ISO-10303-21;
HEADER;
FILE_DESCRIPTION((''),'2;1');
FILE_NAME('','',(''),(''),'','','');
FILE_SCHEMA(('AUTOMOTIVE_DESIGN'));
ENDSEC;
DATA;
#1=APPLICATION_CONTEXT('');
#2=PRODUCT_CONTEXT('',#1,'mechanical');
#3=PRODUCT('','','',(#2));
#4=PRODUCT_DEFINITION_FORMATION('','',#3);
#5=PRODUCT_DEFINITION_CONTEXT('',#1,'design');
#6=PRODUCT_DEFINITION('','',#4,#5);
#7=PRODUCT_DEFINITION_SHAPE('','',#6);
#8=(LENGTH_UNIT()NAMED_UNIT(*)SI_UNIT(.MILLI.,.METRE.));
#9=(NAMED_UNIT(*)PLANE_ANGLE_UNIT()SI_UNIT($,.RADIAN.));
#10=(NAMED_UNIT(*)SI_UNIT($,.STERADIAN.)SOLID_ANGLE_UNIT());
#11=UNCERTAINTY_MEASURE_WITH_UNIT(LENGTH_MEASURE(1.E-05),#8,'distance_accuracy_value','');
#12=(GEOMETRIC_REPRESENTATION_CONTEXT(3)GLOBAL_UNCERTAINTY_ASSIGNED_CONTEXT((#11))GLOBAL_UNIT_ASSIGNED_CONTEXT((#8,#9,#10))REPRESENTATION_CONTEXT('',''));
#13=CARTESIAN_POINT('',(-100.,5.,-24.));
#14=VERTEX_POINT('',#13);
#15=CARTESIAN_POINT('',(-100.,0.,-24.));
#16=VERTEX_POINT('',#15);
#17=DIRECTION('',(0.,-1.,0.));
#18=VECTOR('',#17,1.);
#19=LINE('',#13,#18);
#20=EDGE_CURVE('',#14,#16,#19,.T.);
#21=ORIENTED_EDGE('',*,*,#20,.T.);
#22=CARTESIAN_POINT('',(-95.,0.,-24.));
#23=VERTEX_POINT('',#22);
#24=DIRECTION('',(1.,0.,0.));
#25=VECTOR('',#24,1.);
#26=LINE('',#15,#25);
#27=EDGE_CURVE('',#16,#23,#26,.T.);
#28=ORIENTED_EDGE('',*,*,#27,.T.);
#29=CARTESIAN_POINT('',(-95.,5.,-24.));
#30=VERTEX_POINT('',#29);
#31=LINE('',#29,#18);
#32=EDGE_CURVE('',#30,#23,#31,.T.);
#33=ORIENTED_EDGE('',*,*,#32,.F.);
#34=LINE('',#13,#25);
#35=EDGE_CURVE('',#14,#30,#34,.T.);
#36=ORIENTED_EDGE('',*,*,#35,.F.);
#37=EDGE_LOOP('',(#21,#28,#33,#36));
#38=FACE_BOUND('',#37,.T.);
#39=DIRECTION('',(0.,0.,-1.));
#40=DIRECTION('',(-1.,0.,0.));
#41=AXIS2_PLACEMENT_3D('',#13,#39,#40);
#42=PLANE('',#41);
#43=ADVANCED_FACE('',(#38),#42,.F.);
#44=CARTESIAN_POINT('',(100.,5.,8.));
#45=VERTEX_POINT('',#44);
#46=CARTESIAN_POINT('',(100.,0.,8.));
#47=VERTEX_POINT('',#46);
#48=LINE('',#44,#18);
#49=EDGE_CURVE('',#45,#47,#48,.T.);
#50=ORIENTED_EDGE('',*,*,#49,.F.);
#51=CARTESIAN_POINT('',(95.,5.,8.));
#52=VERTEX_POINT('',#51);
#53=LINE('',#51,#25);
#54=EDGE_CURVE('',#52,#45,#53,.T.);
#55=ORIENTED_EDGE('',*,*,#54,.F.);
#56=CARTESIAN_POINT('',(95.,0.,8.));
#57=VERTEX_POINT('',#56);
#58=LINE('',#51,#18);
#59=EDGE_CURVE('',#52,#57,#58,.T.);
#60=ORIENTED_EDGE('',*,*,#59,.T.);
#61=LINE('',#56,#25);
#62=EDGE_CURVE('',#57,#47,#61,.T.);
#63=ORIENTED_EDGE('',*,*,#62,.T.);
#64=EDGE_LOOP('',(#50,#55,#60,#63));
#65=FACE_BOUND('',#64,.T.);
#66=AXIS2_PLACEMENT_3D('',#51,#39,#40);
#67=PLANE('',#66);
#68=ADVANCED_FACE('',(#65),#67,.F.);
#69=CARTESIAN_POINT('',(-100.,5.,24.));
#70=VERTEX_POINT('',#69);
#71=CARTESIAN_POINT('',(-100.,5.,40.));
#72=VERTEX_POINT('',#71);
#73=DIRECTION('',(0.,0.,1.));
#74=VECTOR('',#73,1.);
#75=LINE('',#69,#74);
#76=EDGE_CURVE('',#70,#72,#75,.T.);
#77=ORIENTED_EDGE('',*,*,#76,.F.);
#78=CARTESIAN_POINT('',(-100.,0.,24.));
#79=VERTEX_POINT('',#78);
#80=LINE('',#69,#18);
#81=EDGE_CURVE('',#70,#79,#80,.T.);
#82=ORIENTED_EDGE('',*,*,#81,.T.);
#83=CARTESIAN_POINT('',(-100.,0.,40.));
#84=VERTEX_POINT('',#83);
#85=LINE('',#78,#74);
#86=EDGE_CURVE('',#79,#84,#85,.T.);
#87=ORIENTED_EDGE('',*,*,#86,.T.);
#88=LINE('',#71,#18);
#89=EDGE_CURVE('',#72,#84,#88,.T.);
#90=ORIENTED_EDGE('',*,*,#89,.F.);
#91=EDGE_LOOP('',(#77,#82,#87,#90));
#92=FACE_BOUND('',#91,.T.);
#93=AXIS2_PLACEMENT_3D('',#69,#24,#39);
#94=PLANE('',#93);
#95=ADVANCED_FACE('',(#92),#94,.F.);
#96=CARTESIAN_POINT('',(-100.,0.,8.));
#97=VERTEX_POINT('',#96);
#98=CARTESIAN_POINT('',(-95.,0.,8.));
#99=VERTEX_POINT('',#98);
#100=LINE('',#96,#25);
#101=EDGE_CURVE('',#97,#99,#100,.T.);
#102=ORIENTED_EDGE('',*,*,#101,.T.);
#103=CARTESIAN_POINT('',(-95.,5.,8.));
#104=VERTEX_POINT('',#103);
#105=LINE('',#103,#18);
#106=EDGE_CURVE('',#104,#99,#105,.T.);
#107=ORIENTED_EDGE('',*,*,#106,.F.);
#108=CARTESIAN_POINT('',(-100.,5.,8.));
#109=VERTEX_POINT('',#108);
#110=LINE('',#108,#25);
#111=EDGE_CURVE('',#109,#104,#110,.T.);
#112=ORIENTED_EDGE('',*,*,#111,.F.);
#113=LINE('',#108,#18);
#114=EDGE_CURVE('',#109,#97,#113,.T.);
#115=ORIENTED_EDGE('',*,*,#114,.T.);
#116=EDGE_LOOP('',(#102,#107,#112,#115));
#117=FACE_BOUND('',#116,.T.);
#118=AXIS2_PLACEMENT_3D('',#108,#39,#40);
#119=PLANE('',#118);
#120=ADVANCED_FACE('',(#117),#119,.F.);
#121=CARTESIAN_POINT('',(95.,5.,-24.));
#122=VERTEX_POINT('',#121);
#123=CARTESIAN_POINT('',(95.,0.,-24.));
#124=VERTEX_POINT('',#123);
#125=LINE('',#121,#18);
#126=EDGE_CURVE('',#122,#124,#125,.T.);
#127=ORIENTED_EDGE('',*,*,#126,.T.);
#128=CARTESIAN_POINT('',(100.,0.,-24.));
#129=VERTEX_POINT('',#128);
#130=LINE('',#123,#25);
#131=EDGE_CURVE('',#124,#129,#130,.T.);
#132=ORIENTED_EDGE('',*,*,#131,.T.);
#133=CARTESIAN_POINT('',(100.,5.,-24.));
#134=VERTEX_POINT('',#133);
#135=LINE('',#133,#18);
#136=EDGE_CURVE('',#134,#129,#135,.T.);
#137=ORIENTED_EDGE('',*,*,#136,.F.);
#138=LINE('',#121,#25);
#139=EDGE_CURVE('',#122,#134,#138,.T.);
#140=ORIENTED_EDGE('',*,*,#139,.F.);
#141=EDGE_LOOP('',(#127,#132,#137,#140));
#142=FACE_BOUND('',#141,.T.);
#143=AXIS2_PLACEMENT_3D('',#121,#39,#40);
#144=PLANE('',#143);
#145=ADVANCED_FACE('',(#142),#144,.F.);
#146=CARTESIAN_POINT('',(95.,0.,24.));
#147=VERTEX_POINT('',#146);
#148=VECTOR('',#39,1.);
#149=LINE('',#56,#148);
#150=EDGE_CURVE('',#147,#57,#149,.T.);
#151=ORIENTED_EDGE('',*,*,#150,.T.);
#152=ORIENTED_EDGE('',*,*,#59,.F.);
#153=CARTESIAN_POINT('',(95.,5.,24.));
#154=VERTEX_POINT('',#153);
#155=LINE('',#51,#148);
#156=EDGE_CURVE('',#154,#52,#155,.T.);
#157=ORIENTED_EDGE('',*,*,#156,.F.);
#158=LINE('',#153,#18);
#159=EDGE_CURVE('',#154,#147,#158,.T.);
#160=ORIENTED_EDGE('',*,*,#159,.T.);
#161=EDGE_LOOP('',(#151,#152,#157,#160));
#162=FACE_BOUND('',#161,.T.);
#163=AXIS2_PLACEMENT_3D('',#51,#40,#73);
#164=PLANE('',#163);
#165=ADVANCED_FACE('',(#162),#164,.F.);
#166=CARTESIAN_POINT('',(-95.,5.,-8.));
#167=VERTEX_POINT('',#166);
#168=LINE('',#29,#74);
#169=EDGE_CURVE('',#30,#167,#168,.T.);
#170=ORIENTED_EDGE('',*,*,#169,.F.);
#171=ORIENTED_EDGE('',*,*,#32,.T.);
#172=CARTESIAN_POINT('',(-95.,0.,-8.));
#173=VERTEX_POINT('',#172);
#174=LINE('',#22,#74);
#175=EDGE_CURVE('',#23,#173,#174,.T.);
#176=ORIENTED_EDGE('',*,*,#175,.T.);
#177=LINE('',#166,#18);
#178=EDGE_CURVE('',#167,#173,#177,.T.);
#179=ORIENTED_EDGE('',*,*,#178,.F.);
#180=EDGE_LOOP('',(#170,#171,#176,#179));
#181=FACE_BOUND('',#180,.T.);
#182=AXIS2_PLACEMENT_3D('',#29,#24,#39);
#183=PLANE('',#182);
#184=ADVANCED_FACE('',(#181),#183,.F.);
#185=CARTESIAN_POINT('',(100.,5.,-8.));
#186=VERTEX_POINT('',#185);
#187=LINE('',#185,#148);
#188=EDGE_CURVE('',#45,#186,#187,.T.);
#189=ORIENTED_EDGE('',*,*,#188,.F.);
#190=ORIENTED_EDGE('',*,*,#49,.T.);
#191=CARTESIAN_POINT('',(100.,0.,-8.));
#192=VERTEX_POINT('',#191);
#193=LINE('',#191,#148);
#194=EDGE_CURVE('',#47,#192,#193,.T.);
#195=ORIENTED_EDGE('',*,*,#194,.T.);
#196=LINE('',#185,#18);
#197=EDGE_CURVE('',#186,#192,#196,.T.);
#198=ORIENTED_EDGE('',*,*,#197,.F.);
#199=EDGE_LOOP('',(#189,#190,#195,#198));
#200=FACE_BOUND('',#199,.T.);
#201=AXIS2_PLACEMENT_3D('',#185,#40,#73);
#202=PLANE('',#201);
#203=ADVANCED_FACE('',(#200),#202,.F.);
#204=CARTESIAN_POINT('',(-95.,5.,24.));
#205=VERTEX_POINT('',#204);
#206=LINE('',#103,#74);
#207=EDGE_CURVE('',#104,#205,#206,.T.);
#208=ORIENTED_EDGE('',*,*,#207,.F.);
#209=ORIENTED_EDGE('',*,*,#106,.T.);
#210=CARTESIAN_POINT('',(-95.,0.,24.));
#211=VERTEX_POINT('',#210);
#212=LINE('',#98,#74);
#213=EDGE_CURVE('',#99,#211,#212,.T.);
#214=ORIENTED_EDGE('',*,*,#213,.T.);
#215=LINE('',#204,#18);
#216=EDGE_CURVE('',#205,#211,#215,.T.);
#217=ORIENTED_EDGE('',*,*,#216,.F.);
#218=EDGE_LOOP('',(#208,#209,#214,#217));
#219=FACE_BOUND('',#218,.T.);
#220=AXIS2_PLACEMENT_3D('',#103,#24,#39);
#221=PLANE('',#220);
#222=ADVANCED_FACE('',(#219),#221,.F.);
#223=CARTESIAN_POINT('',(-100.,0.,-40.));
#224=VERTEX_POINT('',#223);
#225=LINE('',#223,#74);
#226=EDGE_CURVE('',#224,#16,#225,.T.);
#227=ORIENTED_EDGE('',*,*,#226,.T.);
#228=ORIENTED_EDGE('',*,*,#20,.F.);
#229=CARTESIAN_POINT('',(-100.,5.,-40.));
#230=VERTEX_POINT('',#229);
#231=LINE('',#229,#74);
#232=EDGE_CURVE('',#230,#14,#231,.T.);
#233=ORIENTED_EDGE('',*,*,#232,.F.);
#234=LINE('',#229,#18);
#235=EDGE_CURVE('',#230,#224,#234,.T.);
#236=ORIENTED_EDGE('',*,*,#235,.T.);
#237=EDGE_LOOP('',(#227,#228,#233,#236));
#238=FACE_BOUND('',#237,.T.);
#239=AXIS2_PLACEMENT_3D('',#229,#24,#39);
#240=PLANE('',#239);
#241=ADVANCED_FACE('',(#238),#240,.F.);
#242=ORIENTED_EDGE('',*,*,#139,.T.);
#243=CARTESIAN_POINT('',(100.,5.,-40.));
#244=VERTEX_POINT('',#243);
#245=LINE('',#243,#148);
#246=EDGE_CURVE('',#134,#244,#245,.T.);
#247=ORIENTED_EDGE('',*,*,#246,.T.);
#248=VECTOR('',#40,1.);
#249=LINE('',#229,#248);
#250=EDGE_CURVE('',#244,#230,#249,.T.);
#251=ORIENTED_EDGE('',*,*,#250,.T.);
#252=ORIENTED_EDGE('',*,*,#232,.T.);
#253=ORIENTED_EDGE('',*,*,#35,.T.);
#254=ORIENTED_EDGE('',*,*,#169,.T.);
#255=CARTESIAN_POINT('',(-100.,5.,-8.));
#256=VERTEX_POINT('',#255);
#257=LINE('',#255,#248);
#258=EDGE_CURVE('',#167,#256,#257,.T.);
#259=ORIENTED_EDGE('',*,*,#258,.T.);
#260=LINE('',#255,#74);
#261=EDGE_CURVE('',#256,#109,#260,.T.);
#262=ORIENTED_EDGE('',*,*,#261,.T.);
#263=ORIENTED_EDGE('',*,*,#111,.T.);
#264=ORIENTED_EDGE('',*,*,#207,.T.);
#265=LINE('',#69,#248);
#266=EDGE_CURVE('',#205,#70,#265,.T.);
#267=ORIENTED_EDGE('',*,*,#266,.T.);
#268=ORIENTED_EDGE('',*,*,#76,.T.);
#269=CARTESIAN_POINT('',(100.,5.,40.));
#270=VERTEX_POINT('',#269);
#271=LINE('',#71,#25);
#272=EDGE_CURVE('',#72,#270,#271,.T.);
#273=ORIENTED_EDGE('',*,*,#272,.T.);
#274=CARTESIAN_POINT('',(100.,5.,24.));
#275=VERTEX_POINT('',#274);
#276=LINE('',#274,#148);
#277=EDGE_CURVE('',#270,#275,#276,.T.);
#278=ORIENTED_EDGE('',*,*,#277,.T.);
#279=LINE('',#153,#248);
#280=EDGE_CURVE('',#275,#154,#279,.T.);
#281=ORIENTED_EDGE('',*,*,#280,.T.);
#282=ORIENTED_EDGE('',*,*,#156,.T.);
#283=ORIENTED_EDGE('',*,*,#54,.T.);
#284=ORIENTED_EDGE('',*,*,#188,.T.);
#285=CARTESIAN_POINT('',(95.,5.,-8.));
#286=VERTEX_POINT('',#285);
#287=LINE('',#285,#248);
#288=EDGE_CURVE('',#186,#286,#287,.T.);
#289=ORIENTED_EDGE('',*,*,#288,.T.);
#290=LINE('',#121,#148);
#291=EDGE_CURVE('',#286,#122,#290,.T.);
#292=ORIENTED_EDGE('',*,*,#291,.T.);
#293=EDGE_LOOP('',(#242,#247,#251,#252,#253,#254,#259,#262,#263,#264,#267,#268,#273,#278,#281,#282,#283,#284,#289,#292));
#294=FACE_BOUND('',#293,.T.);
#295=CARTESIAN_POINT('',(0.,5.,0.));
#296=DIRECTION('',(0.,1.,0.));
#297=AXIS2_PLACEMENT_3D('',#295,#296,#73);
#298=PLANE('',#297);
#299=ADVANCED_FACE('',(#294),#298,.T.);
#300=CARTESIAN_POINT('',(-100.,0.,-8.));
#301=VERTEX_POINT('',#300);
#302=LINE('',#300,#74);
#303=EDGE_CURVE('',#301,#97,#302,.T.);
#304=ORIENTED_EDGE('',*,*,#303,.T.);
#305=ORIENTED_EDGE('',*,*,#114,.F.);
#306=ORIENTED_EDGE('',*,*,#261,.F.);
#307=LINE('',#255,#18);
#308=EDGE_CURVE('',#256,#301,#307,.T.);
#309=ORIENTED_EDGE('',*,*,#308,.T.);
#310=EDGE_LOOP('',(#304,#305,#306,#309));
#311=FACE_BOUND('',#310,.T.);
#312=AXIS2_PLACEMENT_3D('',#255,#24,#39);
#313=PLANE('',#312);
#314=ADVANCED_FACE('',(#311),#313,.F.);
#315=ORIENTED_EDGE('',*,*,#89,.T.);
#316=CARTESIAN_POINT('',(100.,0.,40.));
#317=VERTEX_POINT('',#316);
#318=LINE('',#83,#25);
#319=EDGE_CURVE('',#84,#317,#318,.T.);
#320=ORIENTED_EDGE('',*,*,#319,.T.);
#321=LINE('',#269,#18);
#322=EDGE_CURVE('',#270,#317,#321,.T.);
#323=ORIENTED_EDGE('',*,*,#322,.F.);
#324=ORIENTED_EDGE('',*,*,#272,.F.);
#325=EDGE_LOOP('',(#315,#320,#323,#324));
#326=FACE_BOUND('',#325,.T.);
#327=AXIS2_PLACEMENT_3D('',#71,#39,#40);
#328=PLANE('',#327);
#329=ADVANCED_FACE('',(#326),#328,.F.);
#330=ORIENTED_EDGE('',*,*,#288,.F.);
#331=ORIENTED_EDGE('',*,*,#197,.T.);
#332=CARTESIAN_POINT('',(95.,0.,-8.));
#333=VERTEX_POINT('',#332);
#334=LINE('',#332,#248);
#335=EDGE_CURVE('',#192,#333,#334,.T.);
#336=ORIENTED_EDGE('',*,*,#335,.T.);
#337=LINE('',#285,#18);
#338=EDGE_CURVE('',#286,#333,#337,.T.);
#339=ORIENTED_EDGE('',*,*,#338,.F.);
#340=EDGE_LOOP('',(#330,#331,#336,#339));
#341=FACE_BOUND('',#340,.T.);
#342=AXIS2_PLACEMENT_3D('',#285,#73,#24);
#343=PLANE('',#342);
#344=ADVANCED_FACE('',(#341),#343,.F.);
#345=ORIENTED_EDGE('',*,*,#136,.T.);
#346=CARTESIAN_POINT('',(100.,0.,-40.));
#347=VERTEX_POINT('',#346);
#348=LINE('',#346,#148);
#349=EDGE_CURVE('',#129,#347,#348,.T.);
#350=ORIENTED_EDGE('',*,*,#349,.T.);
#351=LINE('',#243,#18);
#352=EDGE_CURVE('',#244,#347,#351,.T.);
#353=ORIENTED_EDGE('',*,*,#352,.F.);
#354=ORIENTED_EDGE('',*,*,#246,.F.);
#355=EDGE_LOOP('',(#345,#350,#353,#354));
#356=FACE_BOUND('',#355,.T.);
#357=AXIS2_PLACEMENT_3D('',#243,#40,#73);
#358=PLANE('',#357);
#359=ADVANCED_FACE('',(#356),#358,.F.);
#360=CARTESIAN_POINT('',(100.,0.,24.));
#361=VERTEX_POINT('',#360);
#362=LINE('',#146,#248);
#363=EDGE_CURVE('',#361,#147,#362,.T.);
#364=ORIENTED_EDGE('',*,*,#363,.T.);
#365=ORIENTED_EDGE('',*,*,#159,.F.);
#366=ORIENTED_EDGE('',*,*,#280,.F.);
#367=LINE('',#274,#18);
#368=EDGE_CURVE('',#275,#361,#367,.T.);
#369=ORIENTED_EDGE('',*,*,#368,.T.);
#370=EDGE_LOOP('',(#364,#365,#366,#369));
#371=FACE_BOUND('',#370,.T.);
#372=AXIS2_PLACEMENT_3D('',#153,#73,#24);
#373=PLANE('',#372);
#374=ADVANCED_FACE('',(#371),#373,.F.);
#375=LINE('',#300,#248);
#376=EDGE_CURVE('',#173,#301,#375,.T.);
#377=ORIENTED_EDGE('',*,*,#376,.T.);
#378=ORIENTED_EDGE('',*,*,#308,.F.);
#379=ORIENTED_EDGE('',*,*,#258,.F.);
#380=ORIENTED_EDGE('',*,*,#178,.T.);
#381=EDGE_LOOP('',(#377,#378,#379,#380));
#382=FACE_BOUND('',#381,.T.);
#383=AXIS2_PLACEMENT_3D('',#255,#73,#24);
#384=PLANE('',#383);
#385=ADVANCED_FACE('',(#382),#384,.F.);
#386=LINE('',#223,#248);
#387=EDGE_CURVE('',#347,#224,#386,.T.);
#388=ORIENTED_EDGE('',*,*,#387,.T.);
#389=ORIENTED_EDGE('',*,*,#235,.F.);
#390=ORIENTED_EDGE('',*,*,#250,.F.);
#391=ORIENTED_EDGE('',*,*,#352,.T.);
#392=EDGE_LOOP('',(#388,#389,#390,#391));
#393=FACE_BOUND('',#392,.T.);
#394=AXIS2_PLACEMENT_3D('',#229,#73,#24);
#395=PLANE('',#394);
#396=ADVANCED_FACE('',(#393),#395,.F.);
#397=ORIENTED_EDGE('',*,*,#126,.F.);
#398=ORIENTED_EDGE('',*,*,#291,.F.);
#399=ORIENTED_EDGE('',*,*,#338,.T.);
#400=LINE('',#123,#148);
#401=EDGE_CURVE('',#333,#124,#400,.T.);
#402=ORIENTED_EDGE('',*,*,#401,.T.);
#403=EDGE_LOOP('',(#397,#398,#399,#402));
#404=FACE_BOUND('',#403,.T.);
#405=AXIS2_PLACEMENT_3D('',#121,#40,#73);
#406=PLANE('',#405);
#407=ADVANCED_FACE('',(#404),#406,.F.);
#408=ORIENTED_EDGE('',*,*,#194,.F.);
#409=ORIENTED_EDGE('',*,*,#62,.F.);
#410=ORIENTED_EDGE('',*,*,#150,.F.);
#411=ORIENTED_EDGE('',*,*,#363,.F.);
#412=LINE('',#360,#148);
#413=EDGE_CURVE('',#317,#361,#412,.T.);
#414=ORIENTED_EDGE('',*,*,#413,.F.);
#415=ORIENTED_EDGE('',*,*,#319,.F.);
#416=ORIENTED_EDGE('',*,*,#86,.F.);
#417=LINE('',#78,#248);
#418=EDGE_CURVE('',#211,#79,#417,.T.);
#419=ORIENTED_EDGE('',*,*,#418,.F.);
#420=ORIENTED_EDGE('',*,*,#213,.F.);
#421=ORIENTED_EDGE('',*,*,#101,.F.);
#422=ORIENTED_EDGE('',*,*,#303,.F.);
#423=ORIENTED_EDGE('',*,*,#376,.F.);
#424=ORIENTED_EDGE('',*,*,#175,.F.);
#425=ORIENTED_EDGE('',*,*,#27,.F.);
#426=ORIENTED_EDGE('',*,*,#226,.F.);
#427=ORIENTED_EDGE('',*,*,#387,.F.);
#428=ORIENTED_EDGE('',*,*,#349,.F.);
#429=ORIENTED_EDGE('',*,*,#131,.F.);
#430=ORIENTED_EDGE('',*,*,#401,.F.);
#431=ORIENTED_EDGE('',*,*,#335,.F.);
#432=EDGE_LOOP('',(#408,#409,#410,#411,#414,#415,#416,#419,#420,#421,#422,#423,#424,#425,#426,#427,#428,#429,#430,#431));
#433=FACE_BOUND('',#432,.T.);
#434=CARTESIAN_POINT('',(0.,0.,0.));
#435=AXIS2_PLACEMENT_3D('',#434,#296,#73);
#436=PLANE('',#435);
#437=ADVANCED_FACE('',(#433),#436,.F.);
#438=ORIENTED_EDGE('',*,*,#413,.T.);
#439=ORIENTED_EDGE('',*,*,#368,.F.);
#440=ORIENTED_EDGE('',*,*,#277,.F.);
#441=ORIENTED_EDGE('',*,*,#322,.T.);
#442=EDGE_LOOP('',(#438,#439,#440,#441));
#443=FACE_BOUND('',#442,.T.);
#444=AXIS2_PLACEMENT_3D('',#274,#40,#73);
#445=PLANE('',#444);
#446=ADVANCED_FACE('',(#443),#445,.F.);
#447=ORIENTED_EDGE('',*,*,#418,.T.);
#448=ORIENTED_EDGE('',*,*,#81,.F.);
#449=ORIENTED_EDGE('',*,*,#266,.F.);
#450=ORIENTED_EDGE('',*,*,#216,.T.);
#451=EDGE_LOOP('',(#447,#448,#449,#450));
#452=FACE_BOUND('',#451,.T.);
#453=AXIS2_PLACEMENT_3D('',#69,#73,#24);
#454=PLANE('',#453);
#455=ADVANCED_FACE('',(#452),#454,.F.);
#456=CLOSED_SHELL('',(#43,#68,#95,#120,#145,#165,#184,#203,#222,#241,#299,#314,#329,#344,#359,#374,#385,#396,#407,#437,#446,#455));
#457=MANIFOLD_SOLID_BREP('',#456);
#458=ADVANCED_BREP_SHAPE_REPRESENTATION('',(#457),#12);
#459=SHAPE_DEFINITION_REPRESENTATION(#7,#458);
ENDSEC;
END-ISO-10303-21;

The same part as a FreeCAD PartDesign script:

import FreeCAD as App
import Part
import Sketcher
Q = App.Units.Quantity

doc = App.newDocument("Part")
params = doc.addObject("Spreadsheet::Sheet", "Params")
for row, (alias, value) in enumerate([
    ("sketch1_width", "5 mm"),
    ("sketch1_width2", "200 mm"),
    ("sketch1_height", "16 mm"),
    ("pad1_length", "5 mm"),
], start=1):
    params.set(f"A{row}", alias)
    params.set(f"B{row}", "=" + value)
    params.setAlias(f"B{row}", alias)

body = doc.addObject("PartDesign::Body", "Body")

sketch1 = body.newObject("Sketcher::SketchObject", "Sketch")
sketch1.AttachmentSupport = (doc.getObject("XZ_Plane"), [""])
sketch1.MapMode = "FlatFace"
sketch1.addGeometry(Part.LineSegment(App.Vector(-95, -24, 0), App.Vector(-95, -8, 0)), False)
sketch1.addGeometry(Part.LineSegment(App.Vector(-95, -8, 0), App.Vector(-100, -8, 0)), False)
sketch1.addGeometry(Part.LineSegment(App.Vector(-100, -8, 0), App.Vector(-100, 8, 0)), False)
sketch1.addGeometry(Part.LineSegment(App.Vector(-100, 8, 0), App.Vector(-95, 8, 0)), False)
sketch1.addGeometry(Part.LineSegment(App.Vector(-95, 8, 0), App.Vector(-95, 24, 0)), False)
sketch1.addGeometry(Part.LineSegment(App.Vector(-95, 24, 0), App.Vector(-100, 24, 0)), False)
sketch1.addGeometry(Part.LineSegment(App.Vector(-100, 24, 0), App.Vector(-100, 40, 0)), False)
sketch1.addGeometry(Part.LineSegment(App.Vector(-100, 40, 0), App.Vector(100, 40, 0)), False)
sketch1.addGeometry(Part.LineSegment(App.Vector(100, 40, 0), App.Vector(100, 24, 0)), False)
sketch1.addGeometry(Part.LineSegment(App.Vector(100, 24, 0), App.Vector(95, 24, 0)), False)
sketch1.addGeometry(Part.LineSegment(App.Vector(95, 24, 0), App.Vector(95, 8, 0)), False)
sketch1.addGeometry(Part.LineSegment(App.Vector(95, 8, 0), App.Vector(100, 8, 0)), False)
sketch1.addGeometry(Part.LineSegment(App.Vector(100, 8, 0), App.Vector(100, -8, 0)), False)
sketch1.addGeometry(Part.LineSegment(App.Vector(100, -8, 0), App.Vector(95, -8, 0)), False)
sketch1.addGeometry(Part.LineSegment(App.Vector(95, -8, 0), App.Vector(95, -24, 0)), False)
sketch1.addGeometry(Part.LineSegment(App.Vector(95, -24, 0), App.Vector(100, -24, 0)), False)
sketch1.addGeometry(Part.LineSegment(App.Vector(100, -24, 0), App.Vector(100, -40, 0)), False)
sketch1.addGeometry(Part.LineSegment(App.Vector(100, -40, 0), App.Vector(-100, -40, 0)), False)
sketch1.addGeometry(Part.LineSegment(App.Vector(-100, -40, 0), App.Vector(-100, -24, 0)), False)
sketch1.addGeometry(Part.LineSegment(App.Vector(-100, -24, 0), App.Vector(-95, -24, 0)), False)
sketch1.addConstraint(Sketcher.Constraint("Coincident", 0, 2, 1, 1))
sketch1.addConstraint(Sketcher.Constraint("Coincident", 1, 2, 2, 1))
sketch1.addConstraint(Sketcher.Constraint("Coincident", 2, 2, 3, 1))
sketch1.addConstraint(Sketcher.Constraint("Coincident", 3, 2, 4, 1))
sketch1.addConstraint(Sketcher.Constraint("Coincident", 4, 2, 5, 1))
sketch1.addConstraint(Sketcher.Constraint("Coincident", 5, 2, 6, 1))
sketch1.addConstraint(Sketcher.Constraint("Coincident", 6, 2, 7, 1))
sketch1.addConstraint(Sketcher.Constraint("Coincident", 7, 2, 8, 1))
sketch1.addConstraint(Sketcher.Constraint("Coincident", 8, 2, 9, 1))
sketch1.addConstraint(Sketcher.Constraint("Coincident", 9, 2, 10, 1))
sketch1.addConstraint(Sketcher.Constraint("Coincident", 10, 2, 11, 1))
sketch1.addConstraint(Sketcher.Constraint("Coincident", 11, 2, 12, 1))
sketch1.addConstraint(Sketcher.Constraint("Coincident", 12, 2, 13, 1))
sketch1.addConstraint(Sketcher.Constraint("Coincident", 13, 2, 14, 1))
sketch1.addConstraint(Sketcher.Constraint("Coincident", 14, 2, 15, 1))
sketch1.addConstraint(Sketcher.Constraint("Coincident", 15, 2, 16, 1))
sketch1.addConstraint(Sketcher.Constraint("Coincident", 16, 2, 17, 1))
sketch1.addConstraint(Sketcher.Constraint("Coincident", 17, 2, 18, 1))
sketch1.addConstraint(Sketcher.Constraint("Coincident", 18, 2, 19, 1))
sketch1.addConstraint(Sketcher.Constraint("Coincident", 19, 2, 0, 1))
sketch1.addConstraint(Sketcher.Constraint("Vertical", 0))
sketch1.addConstraint(Sketcher.Constraint("Horizontal", 1))
sketch1.addConstraint(Sketcher.Constraint("Vertical", 2))
sketch1.addConstraint(Sketcher.Constraint("Horizontal", 3))
sketch1.addConstraint(Sketcher.Constraint("Vertical", 4))
sketch1.addConstraint(Sketcher.Constraint("Horizontal", 5))
sketch1.addConstraint(Sketcher.Constraint("Vertical", 6))
sketch1.addConstraint(Sketcher.Constraint("Horizontal", 7))
sketch1.addConstraint(Sketcher.Constraint("Vertical", 8))
sketch1.addConstraint(Sketcher.Constraint("Horizontal", 9))
sketch1.addConstraint(Sketcher.Constraint("Vertical", 10))
sketch1.addConstraint(Sketcher.Constraint("Horizontal", 11))
sketch1.addConstraint(Sketcher.Constraint("Vertical", 12))
sketch1.addConstraint(Sketcher.Constraint("Horizontal", 13))
sketch1.addConstraint(Sketcher.Constraint("Vertical", 14))
sketch1.addConstraint(Sketcher.Constraint("Horizontal", 15))
sketch1.addConstraint(Sketcher.Constraint("Vertical", 16))
sketch1.addConstraint(Sketcher.Constraint("Horizontal", 17))
sketch1.addConstraint(Sketcher.Constraint("Vertical", 18))
sketch1.addConstraint(Sketcher.Constraint("Horizontal", 19))
sketch1.addConstraint(Sketcher.Constraint("Symmetric", 0, 2, 10, 2, -1, 1))
sketch1.addConstraint(Sketcher.Constraint("Symmetric", 2, 2, 12, 2, -1, 1))
sketch1.addConstraint(Sketcher.Constraint("Symmetric", 4, 2, 14, 2, -1, 1))
sketch1.addConstraint(Sketcher.Constraint("Symmetric", 6, 2, 16, 2, -1, 1))
sketch1.addConstraint(Sketcher.Constraint("Symmetric", 8, 2, 18, 2, -1, 1))
sketch1.addConstraint(Sketcher.Constraint("Symmetric", 5, 2, 8, 2, -2))
sketch1.addConstraint(Sketcher.Constraint("Symmetric", 3, 2, 10, 2, -2))
sketch1.addConstraint(Sketcher.Constraint("Vertical", 2, 2, 5, 2))
sketch1.addConstraint(Sketcher.Constraint("Equal", 0, 2))
sketch1.addConstraint(Sketcher.Constraint("Equal", 4, 6))
sketch1.addConstraint(Sketcher.Constraint("DistanceX", 1, 2, 1, 1, Q("5 mm")))
sketch1.addConstraint(Sketcher.Constraint("DistanceX", 7, 1, 7, 2, Q("200 mm")))
sketch1.addConstraint(Sketcher.Constraint("DistanceY", 0, 1, 0, 2, Q("16 mm")))
sketch1.setExpression("Constraints[50]", "Params.sketch1_width")
sketch1.setExpression("Constraints[51]", "Params.sketch1_width2")
sketch1.setExpression("Constraints[52]", "Params.sketch1_height")
pad1 = body.newObject("PartDesign::Pad", "Pad")
pad1.Profile = sketch1
pad1.setExpression("Length", "Params.pad1_length")
pad1.Reversed = True

doc.recompute()
